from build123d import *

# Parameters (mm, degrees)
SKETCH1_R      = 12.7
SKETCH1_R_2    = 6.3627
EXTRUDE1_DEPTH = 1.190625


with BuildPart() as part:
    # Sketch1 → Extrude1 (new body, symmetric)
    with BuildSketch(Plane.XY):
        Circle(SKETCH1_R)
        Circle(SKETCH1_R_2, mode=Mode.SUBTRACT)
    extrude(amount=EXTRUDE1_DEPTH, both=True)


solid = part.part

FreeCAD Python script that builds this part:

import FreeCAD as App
import Part
import Sketcher
from FreeCAD import Vector
Q = App.Units.Quantity

doc = App.newDocument("Part")
body = doc.addObject("PartDesign::Body", "Body")

# Sketch on XY plane
sketch1 = body.newObject("Sketcher::SketchObject", "Sketch")
sketch1.AttachmentSupport = (doc.getObject("XY_Plane"), [""])
sketch1.MapMode = "FlatFace"
sketch1.addGeometry(Part.Circle(Vector(0, 0, 0), Vector(0, 0, 1), 13), False)
sketch1.addGeometry(Part.Circle(Vector(0, 0, 0), Vector(0, 0, 1), 6), False)
sketch1.addConstraint(Sketcher.Constraint("Coincident", 0, 3, -1, 1))
sketch1.addConstraint(Sketcher.Constraint("Coincident", 1, 3, -1, 1))
sketch1.addConstraint(Sketcher.Constraint("Diameter", 0, Q("1 in")))
sketch1.addConstraint(Sketcher.Constraint("Diameter", 1, Q("0.501 in")))
pad1 = body.newObject("PartDesign::Pad", "Pad")
pad1.Profile = sketch1
pad1.Length = Q("0.09375 in")
pad1.Midplane = True

doc.recompute()
